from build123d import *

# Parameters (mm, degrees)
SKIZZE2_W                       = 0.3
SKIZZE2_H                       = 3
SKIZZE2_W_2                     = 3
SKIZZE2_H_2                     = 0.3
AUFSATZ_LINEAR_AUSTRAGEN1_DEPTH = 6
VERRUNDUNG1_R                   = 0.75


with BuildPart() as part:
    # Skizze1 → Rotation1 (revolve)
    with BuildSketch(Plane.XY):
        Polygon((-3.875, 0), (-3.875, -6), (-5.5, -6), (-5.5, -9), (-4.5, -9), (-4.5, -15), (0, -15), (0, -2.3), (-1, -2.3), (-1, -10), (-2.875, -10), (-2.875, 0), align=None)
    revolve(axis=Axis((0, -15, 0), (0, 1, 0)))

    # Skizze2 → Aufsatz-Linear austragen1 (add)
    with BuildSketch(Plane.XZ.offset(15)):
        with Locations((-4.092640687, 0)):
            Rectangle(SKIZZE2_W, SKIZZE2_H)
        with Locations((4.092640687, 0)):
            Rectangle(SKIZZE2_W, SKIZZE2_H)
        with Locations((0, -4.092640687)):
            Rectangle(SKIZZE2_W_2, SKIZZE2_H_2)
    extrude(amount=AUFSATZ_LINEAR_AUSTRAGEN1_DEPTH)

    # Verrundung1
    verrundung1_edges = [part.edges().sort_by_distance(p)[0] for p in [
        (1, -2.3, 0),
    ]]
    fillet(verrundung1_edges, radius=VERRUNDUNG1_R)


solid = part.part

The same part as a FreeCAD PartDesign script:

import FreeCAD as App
import Part
import Sketcher

V = App.Vector


def edges_at(feature, points):
    """Names of the edges that pass closest to the given points."""
    edges = feature.Shape.Edges
    near = lambda p: min(range(len(edges)), key=lambda i: edges[i].distToShape(Part.Vertex(*p))[0])
    return sorted({f"Edge{near(p) + 1}" for p in points})


def add_polygon(sketch, points):
    """Adds a closed chain of lines whose ends are joined by coincident constraints."""
    first, n = sketch.GeometryCount, len(points)
    for a, b in zip(points, points[1:] + points[:1]):
        sketch.addGeometry(Part.LineSegment(App.Vector(*a, 0), App.Vector(*b, 0)), False)
    for i in range(n):
        sketch.addConstraint(Sketcher.Constraint("Coincident", first + i, 2, first + (i + 1) % n, 1))

doc = App.newDocument("Part")
body = doc.addObject("PartDesign::Body", "Body")

sketch1 = doc.addObject("Sketcher::SketchObject", "Sketch")
body.addObject(sketch1)
sketch1.AttachmentSupport = (doc.XY_Plane, [""])
sketch1.MapMode = "FlatFace"
add_polygon(sketch1, [(-3.9, 0), (-3.9, -6), (-5.5, -6), (-5.5, -9), (-4.5, -9), (-4.5, -15), (0, -15), (0, -2.3), (-1, -2.3), (-1, -10), (-2.9, -10), (-2.9, 0)])
sketch1.addConstraint(Sketcher.Constraint("Vertical", 0))
sketch1.addConstraint(Sketcher.Constraint("Horizontal", 1))
sketch1.addConstraint(Sketcher.Constraint("Vertical", 2))
sketch1.addConstraint(Sketcher.Constraint("Horizontal", 3))
sketch1.addConstraint(Sketcher.Constraint("Vertical", 4))
sketch1.addConstraint(Sketcher.Constraint("Horizontal", 5))
sketch1.addConstraint(Sketcher.Constraint("Vertical", 6))
sketch1.addConstraint(Sketcher.Constraint("Horizontal", 7))
sketch1.addConstraint(Sketcher.Constraint("Vertical", 8))
sketch1.addConstraint(Sketcher.Constraint("Horizontal", 9))
sketch1.addConstraint(Sketcher.Constraint("Vertical", 10))
sketch1.addConstraint(Sketcher.Constraint("Horizontal", 11))
sketch1.addConstraint(Sketcher.Constraint("PointOnObject", 5, 2, -2))
sketch1.addConstraint(Sketcher.Constraint("PointOnObject", 10, 2, -1))
sketch1.addConstraint(Sketcher.Constraint("Equal", 3, 7))
sketch1.addConstraint(Sketcher.Constraint("Equal", 7, 11))
sketch1.addConstraint(Sketcher.Constraint("Equal", 0, 4))
sketch1.addConstraint(Sketcher.Constraint("DistanceX", 3, 1, 3, 2, 1.0))
sketch1.addConstraint(Sketcher.Constraint("DistanceY", 0, 2, 0, 1, 6.0))
sketch1.addConstraint(Sketcher.Constraint("DistanceY", 2, 2, 2, 1, 3.0))
sketch1.addConstraint(Sketcher.Constraint("DistanceY", 10, 1, 10, 2, 10.0))
sketch1.addConstraint(Sketcher.Constraint("DistanceX", 5, 1, 5, 2, 4.5))
sketch1.addConstraint(Sketcher.Constraint("DistanceY", 6, 1, 6, 2, 12.7))
sketch1.addConstraint(Sketcher.Constraint("DistanceX", 1, 2, 1, 1, 1.625))
revolution = doc.addObject("PartDesign::Revolution", "Revolution")
body.addObject(revolution)
revolution.Profile = sketch1
revolution.ReferenceAxis = (sketch1, ["V_Axis"])
revolution.Angle = 360

sketch2 = doc.addObject("Sketcher::SketchObject", "Sketch001")
body.addObject(sketch2)
sketch2.AttachmentSupport = (doc.XZ_Plane, [""])
sketch2.MapMode = "FlatFace"
sketch2.AttachmentOffset = App.Placement(V(0, 0, 15), App.Rotation())
add_polygon(sketch2, [(-4.24, 1.5), (-4.24, -1.5), (-3.94, -1.5), (-3.94, 1.5)])
add_polygon(sketch2, [(3.94, 1.5), (3.94, -1.5), (4.24, -1.5), (4.24, 1.5)])
add_polygon(sketch2, [(-1.5, -3.94), (-1.5, -4.24), (1.5, -4.24), (1.5, -3.94)])
sketch2.addConstraint(Sketcher.Constraint("Vertical", 0))
sketch2.addConstraint(Sketcher.Constraint("Horizontal", 1))
sketch2.addConstraint(Sketcher.Constraint("Vertical", 2))
sketch2.addConstraint(Sketcher.Constraint("Horizontal", 3))
sketch2.addConstraint(Sketcher.Constraint("Vertical", 4))
sketch2.addConstraint(Sketcher.Constraint("Horizontal", 5))
sketch2.addConstraint(Sketcher.Constraint("Vertical", 6))
sketch2.addConstraint(Sketcher.Constraint("Horizontal", 7))
sketch2.addConstraint(Sketcher.Constraint("Vertical", 8))
sketch2.addConstraint(Sketcher.Constraint("Horizontal", 9))
sketch2.addConstraint(Sketcher.Constraint("Vertical", 10))
sketch2.addConstraint(Sketcher.Constraint("Horizontal", 11))
sketch2.addConstraint(Sketcher.Constraint("Symmetric", 2, 2, 4, 2, -1, 1))
sketch2.addConstraint(Sketcher.Constraint("Symmetric", 0, 2, 6, 2, -1, 1))
sketch2.addConstraint(Sketcher.Constraint("Horizontal", 1, 2, 4, 2))
sketch2.addConstraint(Sketcher.Constraint("Equal", 11, 0))
sketch2.addConstraint(Sketcher.Constraint("Equal", 7, 8))
sketch2.addConstraint(Sketcher.Constraint("DistanceX", 9, 1, 9, 2, 3.0))
sketch2.addConstraint(Sketcher.Constraint("DistanceX", 1, 1, 1, 2, 0.3))
sketch2.addConstraint(Sketcher.Constraint("DistanceX", 8, 2, -1, 1, 1.5))
sketch2.addConstraint(Sketcher.Constraint("DistanceX", 0, 2, -1, 1, 4.242641))
sketch2.addConstraint(Sketcher.Constraint("DistanceY", 8, 2, -1, 1, 4.242641))
pad1 = doc.addObject("PartDesign::Pad", "Pad")
body.addObject(pad1)
pad1.Profile = sketch2
pad1.Length = 6
doc.recompute()

fillet = doc.addObject("PartDesign::Fillet", "Fillet")
body.addObject(fillet)
fillet.Base = (pad1, edges_at(pad1, [(1, -2.3, 0)]))
fillet.Radius = 0.75

doc.recompute()
